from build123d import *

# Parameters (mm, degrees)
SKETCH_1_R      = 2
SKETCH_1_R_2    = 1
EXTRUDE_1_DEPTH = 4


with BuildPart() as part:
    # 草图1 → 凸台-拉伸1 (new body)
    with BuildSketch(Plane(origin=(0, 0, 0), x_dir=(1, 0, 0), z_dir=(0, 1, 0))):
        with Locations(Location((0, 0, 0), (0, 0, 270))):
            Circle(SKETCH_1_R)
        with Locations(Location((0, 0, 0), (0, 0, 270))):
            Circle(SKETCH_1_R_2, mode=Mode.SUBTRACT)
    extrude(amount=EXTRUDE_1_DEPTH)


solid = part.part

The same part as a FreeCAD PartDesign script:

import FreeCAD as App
import Part
import Sketcher

V = App.Vector
Q = App.Units.Quantity

doc = App.newDocument("Part")
body = doc.addObject("PartDesign::Body", "Body")

# Sketch on XZ plane
sketch1 = body.newObject("Sketcher::SketchObject", "Sketch")
sketch1.AttachmentSupport = (doc.getObject("XZ_Plane"), [""])
sketch1.MapMode = "FlatFace"
sketch1.addGeometry(Part.Circle(V(0, 0, 0), V(0, 0, 1), 2), False)
sketch1.addGeometry(Part.Circle(V(0, 0, 0), V(0, 0, 1), 1), False)
sketch1.addConstraint(Sketcher.Constraint("Coincident", 0, 3, -1, 1))
sketch1.addConstraint(Sketcher.Constraint("Coincident", 1, 3, -1, 1))
sketch1.addConstraint(Sketcher.Constraint("Diameter", 0, Q("4 mm")))
sketch1.addConstraint(Sketcher.Constraint("Diameter", 1, Q("2 mm")))
pad1 = body.newObject("PartDesign::Pad", "Pad")
pad1.Profile = sketch1
pad1.Length = 4
pad1.Reversed = True

doc.recompute()
